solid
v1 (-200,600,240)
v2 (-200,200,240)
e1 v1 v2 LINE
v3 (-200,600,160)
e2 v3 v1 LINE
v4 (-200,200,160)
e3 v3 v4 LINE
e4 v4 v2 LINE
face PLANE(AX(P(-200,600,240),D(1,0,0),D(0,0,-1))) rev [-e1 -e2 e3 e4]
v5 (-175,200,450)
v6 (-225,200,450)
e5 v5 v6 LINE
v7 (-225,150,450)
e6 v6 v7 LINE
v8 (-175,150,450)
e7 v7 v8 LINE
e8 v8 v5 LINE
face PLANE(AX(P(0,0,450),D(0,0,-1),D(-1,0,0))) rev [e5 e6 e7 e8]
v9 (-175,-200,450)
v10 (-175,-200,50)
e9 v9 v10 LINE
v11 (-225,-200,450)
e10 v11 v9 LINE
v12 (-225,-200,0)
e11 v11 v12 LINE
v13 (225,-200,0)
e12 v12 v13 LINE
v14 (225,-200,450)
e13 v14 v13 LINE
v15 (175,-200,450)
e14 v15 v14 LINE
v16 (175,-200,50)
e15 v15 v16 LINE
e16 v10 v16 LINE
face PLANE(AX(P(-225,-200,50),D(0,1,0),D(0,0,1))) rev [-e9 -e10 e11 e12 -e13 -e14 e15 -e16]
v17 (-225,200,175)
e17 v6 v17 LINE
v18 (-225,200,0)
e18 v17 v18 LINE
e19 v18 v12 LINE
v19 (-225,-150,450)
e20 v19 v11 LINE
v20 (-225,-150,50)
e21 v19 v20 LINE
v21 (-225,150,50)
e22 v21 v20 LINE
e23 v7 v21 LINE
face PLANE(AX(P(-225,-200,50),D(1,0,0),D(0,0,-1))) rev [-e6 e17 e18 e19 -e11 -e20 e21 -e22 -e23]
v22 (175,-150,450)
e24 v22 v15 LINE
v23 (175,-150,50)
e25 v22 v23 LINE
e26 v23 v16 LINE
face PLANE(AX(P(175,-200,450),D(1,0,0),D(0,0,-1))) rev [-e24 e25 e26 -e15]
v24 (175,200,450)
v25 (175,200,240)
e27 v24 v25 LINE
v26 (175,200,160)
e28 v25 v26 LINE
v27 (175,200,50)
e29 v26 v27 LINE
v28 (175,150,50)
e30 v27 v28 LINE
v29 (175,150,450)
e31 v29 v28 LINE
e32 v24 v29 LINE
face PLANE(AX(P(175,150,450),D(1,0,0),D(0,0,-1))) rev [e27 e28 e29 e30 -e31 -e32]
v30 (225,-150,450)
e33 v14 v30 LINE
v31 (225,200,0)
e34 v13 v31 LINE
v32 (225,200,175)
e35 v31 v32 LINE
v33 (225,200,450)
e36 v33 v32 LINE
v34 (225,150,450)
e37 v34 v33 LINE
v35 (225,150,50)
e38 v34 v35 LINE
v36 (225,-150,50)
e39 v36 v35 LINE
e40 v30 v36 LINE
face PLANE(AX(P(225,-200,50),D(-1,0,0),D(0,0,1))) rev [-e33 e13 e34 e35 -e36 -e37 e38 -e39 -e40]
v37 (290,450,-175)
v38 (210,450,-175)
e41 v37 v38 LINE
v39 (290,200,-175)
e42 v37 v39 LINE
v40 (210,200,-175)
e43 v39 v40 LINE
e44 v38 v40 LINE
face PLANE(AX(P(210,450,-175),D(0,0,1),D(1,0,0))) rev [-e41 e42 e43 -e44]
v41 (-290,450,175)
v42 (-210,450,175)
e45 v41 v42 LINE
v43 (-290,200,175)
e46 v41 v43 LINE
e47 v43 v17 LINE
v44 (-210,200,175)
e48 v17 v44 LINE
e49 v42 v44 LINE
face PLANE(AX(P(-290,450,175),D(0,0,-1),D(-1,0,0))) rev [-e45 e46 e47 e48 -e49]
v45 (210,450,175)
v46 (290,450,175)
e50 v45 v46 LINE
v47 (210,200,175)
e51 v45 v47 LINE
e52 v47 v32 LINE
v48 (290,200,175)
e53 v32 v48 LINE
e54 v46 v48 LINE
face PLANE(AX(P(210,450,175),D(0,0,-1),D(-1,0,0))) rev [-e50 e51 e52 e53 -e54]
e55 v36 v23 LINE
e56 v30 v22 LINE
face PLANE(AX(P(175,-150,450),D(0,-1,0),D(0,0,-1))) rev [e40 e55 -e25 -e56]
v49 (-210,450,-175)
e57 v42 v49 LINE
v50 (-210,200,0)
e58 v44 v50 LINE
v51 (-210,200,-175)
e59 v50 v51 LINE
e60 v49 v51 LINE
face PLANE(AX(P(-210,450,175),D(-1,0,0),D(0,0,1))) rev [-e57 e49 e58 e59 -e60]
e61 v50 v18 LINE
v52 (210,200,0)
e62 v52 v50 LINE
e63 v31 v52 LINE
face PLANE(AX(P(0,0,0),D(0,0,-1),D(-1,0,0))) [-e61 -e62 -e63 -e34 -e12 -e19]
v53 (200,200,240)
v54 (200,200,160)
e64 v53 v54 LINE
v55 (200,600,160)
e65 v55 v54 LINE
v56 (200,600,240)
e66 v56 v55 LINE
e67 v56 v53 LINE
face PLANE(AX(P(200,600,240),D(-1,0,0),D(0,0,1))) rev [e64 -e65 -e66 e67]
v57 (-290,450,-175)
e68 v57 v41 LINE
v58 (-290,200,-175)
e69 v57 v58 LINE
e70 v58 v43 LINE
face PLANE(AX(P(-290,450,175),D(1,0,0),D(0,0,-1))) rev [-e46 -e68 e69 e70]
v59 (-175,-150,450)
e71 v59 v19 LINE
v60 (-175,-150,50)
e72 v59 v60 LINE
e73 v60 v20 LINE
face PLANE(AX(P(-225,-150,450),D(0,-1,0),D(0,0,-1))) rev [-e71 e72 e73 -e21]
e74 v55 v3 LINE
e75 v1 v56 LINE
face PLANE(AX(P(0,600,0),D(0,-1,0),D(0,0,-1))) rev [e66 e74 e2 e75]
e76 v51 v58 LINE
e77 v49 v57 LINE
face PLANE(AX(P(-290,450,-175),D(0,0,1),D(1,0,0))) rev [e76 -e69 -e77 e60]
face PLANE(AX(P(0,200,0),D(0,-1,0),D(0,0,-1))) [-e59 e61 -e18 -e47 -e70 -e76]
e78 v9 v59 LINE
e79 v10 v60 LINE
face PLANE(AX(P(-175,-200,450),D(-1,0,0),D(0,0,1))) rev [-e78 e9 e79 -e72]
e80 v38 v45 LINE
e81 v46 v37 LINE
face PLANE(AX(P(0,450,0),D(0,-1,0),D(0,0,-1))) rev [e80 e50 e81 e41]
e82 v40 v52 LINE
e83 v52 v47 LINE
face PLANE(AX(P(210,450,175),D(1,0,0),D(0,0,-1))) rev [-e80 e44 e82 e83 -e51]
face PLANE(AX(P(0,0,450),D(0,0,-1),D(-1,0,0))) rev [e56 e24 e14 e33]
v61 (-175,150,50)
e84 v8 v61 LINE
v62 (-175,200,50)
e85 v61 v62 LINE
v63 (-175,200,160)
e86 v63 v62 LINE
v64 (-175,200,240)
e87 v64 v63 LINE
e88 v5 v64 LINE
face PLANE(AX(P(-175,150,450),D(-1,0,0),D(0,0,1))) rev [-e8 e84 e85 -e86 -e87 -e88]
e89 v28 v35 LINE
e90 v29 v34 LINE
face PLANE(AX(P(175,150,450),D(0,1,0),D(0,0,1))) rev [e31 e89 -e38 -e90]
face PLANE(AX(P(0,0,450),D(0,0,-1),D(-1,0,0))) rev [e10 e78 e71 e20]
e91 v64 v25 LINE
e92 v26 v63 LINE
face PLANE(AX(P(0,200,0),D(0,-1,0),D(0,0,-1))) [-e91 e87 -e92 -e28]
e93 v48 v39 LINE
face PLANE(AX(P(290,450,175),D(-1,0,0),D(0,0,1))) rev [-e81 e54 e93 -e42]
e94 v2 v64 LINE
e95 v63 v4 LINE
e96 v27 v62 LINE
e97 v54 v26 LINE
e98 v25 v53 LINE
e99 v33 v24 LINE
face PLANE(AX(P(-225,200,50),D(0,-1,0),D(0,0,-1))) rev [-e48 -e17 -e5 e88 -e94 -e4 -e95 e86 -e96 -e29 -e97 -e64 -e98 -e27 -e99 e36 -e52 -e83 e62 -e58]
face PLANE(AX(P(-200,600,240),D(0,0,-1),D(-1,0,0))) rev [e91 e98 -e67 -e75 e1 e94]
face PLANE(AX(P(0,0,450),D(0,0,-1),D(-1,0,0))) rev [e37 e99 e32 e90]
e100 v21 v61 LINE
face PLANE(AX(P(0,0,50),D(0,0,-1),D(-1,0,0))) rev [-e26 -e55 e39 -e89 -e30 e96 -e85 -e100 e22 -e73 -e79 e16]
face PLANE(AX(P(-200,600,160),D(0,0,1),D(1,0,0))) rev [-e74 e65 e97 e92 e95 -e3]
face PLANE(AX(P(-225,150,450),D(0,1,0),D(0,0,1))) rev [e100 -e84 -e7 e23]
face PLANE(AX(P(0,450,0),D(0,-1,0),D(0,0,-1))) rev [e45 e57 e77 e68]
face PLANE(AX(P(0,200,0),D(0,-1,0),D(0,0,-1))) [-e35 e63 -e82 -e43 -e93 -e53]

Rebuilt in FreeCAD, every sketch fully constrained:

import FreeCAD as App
import Part
import Sketcher
Q = App.Units.Quantity


def add_polygon(sketch, points):
    """Adds a closed chain of lines whose ends are joined by coincident constraints."""
    first, n = sketch.GeometryCount, len(points)
    for a, b in zip(points, points[1:] + points[:1]):
        sketch.addGeometry(Part.LineSegment(App.Vector(*a, 0), App.Vector(*b, 0)), False)
    for i in range(n):
        sketch.addConstraint(Sketcher.Constraint("Coincident", first + i, 2, first + (i + 1) % n, 1))

doc = App.newDocument("Part")
params = doc.addObject("Spreadsheet::Sheet", "Params")
for row, (alias, value) in enumerate([
    ("sketch1_width", "450 mm"),
    ("sketch1_height", "400 mm"),
    ("pad1_length", "50 mm"),
    ("sketch2_width", "50 mm"),
    ("pad2_length", "450 mm"),
    ("sketch3_width", "50 mm"),
    ("pad3_length", "450 mm"),
    ("sketch4_width", "50 mm"),
    ("pad4_length", "450 mm"),
    ("sketch5_width", "50 mm"),
    ("pad5_length", "450 mm"),
    ("sketch6_width", "400 mm"),
    ("sketch6_height", "80 mm"),
    ("pad6_length", "400 mm"),
    ("sketch7_width", "80 mm"),
    ("sketch7_height", "350 mm"),
    ("pad7_length", "250 mm"),
    ("sketch8_width", "80 mm"),
    ("sketch8_height", "350 mm"),
    ("pad8_length", "250 mm"),
], start=1):
    params.set(f"A{row}", alias)
    params.set(f"B{row}", "=" + value)
    params.setAlias(f"B{row}", alias)

body = doc.addObject("PartDesign::Body", "Body")

sketch1 = body.newObject("Sketcher::SketchObject", "Sketch")
sketch1.AttachmentSupport = (doc.getObject("XY_Plane"), [""])
sketch1.MapMode = "FlatFace"
add_polygon(sketch1, [(-225, 200), (-225, -200), (225, -200), (225, 200)])
sketch1.addConstraint([
    Sketcher.Constraint("Vertical", 0),
    Sketcher.Constraint("Horizontal", 1),
    Sketcher.Constraint("Vertical", 2),
    Sketcher.Constraint("Horizontal", 3),
    Sketcher.Constraint("Symmetric", 0, 2, 2, 2, -1, 1),
    Sketcher.Constraint("DistanceX", 1, 1, 1, 2, Q("450 mm")),
    Sketcher.Constraint("DistanceY", 0, 2, 0, 1, Q("400 mm")),
])
sketch1.setExpression("Constraints[9]", "Params.sketch1_width")
sketch1.setExpression("Constraints[10]", "Params.sketch1_height")
pad1 = body.newObject("PartDesign::Pad", "Pad")
pad1.Profile = sketch1
pad1.setExpression("Length", "Params.pad1_length")

sketch2 = body.newObject("Sketcher::SketchObject", "Sketch001")
sketch2.AttachmentSupport = (doc.getObject("XY_Plane"), [""])
sketch2.MapMode = "FlatFace"
add_polygon(sketch2, [(-225, -150), (-225, -200), (-175, -200), (-175, -150)])
sketch2.addConstraint([
    Sketcher.Constraint("Vertical", 0),
    Sketcher.Constraint("Horizontal", 1),
    Sketcher.Constraint("Vertical", 2),
    Sketcher.Constraint("Horizontal", 3),
    Sketcher.Constraint("Equal", 3, 0),
    Sketcher.Constraint("DistanceX", 1, 1, 1, 2, Q("50 mm")),
    Sketcher.Constraint("DistanceX", 0, 2, -1, 1, Q("225 mm")),
    Sketcher.Constraint("DistanceY", 0, 2, -1, 1, Q("200 mm")),
])
sketch2.setExpression("Constraints[9]", "Params.sketch2_width")
pad2 = body.newObject("PartDesign::Pad", "Pad001")
pad2.Profile = sketch2
pad2.setExpression("Length", "Params.pad2_length")

sketch3 = body.newObject("Sketcher::SketchObject", "Sketch002")
sketch3.AttachmentSupport = (doc.getObject("XY_Plane"), [""])
sketch3.MapMode = "FlatFace"
add_polygon(sketch3, [(175, -150), (175, -200), (225, -200), (225, -150)])
sketch3.addConstraint([
    Sketcher.Constraint("Vertical", 0),
    Sketcher.Constraint("Horizontal", 1),
    Sketcher.Constraint("Vertical", 2),
    Sketcher.Constraint("Horizontal", 3),
    Sketcher.Constraint("Equal", 3, 0),
    Sketcher.Constraint("DistanceX", 1, 1, 1, 2, Q("50 mm")),
    Sketcher.Constraint("DistanceX", -1, 1, 0, 2, Q("175 mm")),
    Sketcher.Constraint("DistanceY", 0, 2, -1, 1, Q("200 mm")),
])
sketch3.setExpression("Constraints[9]", "Params.sketch3_width")
pad3 = body.newObject("PartDesign::Pad", "Pad002")
pad3.Profile = sketch3
pad3.setExpression("Length", "Params.pad3_length")

sketch4 = body.newObject("Sketcher::SketchObject", "Sketch003")
sketch4.AttachmentSupport = (doc.getObject("XY_Plane"), [""])
sketch4.MapMode = "FlatFace"
add_polygon(sketch4, [(-225, 200), (-225, 150), (-175, 150), (-175, 200)])
sketch4.addConstraint([
    Sketcher.Constraint("Vertical", 0),
    Sketcher.Constraint("Horizontal", 1),
    Sketcher.Constraint("Vertical", 2),
    Sketcher.Constraint("Horizontal", 3),
    Sketcher.Constraint("Equal", 3, 0),
    Sketcher.Constraint("DistanceX", 1, 1, 1, 2, Q("50 mm")),
    Sketcher.Constraint("DistanceX", 0, 2, -1, 1, Q("225 mm")),
    Sketcher.Constraint("DistanceY", -1, 1, 0, 2, Q("150 mm")),
])
sketch4.setExpression("Constraints[9]", "Params.sketch4_width")
pad4 = body.newObject("PartDesign::Pad", "Pad003")
pad4.Profile = sketch4
pad4.setExpression("Length", "Params.pad4_length")

sketch5 = body.newObject("Sketcher::SketchObject", "Sketch004")
sketch5.AttachmentSupport = (doc.getObject("XY_Plane"), [""])
sketch5.MapMode = "FlatFace"
add_polygon(sketch5, [(175, 200), (175, 150), (225, 150), (225, 200)])
sketch5.addConstraint([
    Sketcher.Constraint("Vertical", 0),
    Sketcher.Constraint("Horizontal", 1),
    Sketcher.Constraint("Vertical", 2),
    Sketcher.Constraint("Horizontal", 3),
    Sketcher.Constraint("Equal", 3, 0),
    Sketcher.Constraint("DistanceX", 1, 1, 1, 2, Q("50 mm")),
    Sketcher.Constraint("DistanceX", -1, 1, 0, 2, Q("175 mm")),
    Sketcher.Constraint("DistanceY", -1, 1, 0, 2, Q("150 mm")),
])
sketch5.setExpression("Constraints[9]", "Params.sketch5_width")
pad5 = body.newObject("PartDesign::Pad", "Pad004")
pad5.Profile = sketch5
pad5.setExpression("Length", "Params.pad5_length")

sketch6 = body.newObject("Sketcher::SketchObject", "Sketch005")
sketch6.AttachmentSupport = (doc.getObject("XZ_Plane"), [""])
sketch6.MapMode = "FlatFace"
sketch6.AttachmentOffset = App.Placement(App.Vector(0, 0, -200), App.Rotation())
add_polygon(sketch6, [(-200, 160), (-200, 240), (200, 240), (200, 160)])
sketch6.addConstraint([
    Sketcher.Constraint("Vertical", 0),
    Sketcher.Constraint("Horizontal", 1),
    Sketcher.Constraint("Vertical", 2),
    Sketcher.Constraint("Horizontal", 3),
    Sketcher.Constraint("DistanceX", 1, 1, 1, 2, Q("400 mm")),
    Sketcher.Constraint("DistanceY", 0, 1, 0, 2, Q("80 mm")),
    Sketcher.Constraint("DistanceX", 0, 2, -1, 1, Q("200 mm")),
    Sketcher.Constraint("DistanceY", -1, 1, 0, 2, Q("240 mm")),
])
sketch6.setExpression("Constraints[8]", "Params.sketch6_width")
sketch6.setExpression("Constraints[9]", "Params.sketch6_height")
pad6 = body.newObject("PartDesign::Pad", "Pad005")
pad6.Profile = sketch6
pad6.setExpression("Length", "Params.pad6_length")
pad6.Reversed = True

sketch7 = body.newObject("Sketcher::SketchObject", "Sketch006")
sketch7.AttachmentSupport = (doc.getObject("XZ_Plane"), [""])
sketch7.MapMode = "FlatFace"
sketch7.AttachmentOffset = App.Placement(App.Vector(0, 0, -200), App.Rotation())
add_polygon(sketch7, [(-290, -175), (-290, 175), (-210, 175), (-210, -175)])
sketch7.addConstraint([
    Sketcher.Constraint("Vertical", 0),
    Sketcher.Constraint("Horizontal", 1),
    Sketcher.Constraint("Vertical", 2),
    Sketcher.Constraint("Horizontal", 3),
    Sketcher.Constraint("DistanceX", 1, 1, 1, 2, Q("80 mm")),
    Sketcher.Constraint("DistanceY", 0, 1, 0, 2, Q("350 mm")),
    Sketcher.Constraint("DistanceX", 0, 2, -1, 1, Q("290 mm")),
    Sketcher.Constraint("DistanceY", -1, 1, 0, 2, Q("175 mm")),
])
sketch7.setExpression("Constraints[8]", "Params.sketch7_width")
sketch7.setExpression("Constraints[9]", "Params.sketch7_height")
pad7 = body.newObject("PartDesign::Pad", "Pad006")
pad7.Profile = sketch7
pad7.setExpression("Length", "Params.pad7_length")
pad7.Reversed = True

sketch8 = body.newObject("Sketcher::SketchObject", "Sketch007")
sketch8.AttachmentSupport = (doc.getObject("XZ_Plane"), [""])
sketch8.MapMode = "FlatFace"
sketch8.AttachmentOffset = App.Placement(App.Vector(0, 0, -200), App.Rotation())
add_polygon(sketch8, [(210, -175), (210, 175), (290, 175), (290, -175)])
sketch8.addConstraint([
    Sketcher.Constraint("Vertical", 0),
    Sketcher.Constraint("Horizontal", 1),
    Sketcher.Constraint("Vertical", 2),
    Sketcher.Constraint("Horizontal", 3),
    Sketcher.Constraint("DistanceX", 1, 1, 1, 2, Q("80 mm")),
    Sketcher.Constraint("DistanceY", 0, 1, 0, 2, Q("350 mm")),
    Sketcher.Constraint("DistanceX", -1, 1, 0, 2, Q("210 mm")),
    Sketcher.Constraint("DistanceY", -1, 1, 0, 2, Q("175 mm")),
])
sketch8.setExpression("Constraints[8]", "Params.sketch8_width")
sketch8.setExpression("Constraints[9]", "Params.sketch8_height")
pad8 = body.newObject("PartDesign::Pad", "Pad007")
pad8.Profile = sketch8
pad8.setExpression("Length", "Params.pad8_length")
pad8.Reversed = True

doc.recompute()
